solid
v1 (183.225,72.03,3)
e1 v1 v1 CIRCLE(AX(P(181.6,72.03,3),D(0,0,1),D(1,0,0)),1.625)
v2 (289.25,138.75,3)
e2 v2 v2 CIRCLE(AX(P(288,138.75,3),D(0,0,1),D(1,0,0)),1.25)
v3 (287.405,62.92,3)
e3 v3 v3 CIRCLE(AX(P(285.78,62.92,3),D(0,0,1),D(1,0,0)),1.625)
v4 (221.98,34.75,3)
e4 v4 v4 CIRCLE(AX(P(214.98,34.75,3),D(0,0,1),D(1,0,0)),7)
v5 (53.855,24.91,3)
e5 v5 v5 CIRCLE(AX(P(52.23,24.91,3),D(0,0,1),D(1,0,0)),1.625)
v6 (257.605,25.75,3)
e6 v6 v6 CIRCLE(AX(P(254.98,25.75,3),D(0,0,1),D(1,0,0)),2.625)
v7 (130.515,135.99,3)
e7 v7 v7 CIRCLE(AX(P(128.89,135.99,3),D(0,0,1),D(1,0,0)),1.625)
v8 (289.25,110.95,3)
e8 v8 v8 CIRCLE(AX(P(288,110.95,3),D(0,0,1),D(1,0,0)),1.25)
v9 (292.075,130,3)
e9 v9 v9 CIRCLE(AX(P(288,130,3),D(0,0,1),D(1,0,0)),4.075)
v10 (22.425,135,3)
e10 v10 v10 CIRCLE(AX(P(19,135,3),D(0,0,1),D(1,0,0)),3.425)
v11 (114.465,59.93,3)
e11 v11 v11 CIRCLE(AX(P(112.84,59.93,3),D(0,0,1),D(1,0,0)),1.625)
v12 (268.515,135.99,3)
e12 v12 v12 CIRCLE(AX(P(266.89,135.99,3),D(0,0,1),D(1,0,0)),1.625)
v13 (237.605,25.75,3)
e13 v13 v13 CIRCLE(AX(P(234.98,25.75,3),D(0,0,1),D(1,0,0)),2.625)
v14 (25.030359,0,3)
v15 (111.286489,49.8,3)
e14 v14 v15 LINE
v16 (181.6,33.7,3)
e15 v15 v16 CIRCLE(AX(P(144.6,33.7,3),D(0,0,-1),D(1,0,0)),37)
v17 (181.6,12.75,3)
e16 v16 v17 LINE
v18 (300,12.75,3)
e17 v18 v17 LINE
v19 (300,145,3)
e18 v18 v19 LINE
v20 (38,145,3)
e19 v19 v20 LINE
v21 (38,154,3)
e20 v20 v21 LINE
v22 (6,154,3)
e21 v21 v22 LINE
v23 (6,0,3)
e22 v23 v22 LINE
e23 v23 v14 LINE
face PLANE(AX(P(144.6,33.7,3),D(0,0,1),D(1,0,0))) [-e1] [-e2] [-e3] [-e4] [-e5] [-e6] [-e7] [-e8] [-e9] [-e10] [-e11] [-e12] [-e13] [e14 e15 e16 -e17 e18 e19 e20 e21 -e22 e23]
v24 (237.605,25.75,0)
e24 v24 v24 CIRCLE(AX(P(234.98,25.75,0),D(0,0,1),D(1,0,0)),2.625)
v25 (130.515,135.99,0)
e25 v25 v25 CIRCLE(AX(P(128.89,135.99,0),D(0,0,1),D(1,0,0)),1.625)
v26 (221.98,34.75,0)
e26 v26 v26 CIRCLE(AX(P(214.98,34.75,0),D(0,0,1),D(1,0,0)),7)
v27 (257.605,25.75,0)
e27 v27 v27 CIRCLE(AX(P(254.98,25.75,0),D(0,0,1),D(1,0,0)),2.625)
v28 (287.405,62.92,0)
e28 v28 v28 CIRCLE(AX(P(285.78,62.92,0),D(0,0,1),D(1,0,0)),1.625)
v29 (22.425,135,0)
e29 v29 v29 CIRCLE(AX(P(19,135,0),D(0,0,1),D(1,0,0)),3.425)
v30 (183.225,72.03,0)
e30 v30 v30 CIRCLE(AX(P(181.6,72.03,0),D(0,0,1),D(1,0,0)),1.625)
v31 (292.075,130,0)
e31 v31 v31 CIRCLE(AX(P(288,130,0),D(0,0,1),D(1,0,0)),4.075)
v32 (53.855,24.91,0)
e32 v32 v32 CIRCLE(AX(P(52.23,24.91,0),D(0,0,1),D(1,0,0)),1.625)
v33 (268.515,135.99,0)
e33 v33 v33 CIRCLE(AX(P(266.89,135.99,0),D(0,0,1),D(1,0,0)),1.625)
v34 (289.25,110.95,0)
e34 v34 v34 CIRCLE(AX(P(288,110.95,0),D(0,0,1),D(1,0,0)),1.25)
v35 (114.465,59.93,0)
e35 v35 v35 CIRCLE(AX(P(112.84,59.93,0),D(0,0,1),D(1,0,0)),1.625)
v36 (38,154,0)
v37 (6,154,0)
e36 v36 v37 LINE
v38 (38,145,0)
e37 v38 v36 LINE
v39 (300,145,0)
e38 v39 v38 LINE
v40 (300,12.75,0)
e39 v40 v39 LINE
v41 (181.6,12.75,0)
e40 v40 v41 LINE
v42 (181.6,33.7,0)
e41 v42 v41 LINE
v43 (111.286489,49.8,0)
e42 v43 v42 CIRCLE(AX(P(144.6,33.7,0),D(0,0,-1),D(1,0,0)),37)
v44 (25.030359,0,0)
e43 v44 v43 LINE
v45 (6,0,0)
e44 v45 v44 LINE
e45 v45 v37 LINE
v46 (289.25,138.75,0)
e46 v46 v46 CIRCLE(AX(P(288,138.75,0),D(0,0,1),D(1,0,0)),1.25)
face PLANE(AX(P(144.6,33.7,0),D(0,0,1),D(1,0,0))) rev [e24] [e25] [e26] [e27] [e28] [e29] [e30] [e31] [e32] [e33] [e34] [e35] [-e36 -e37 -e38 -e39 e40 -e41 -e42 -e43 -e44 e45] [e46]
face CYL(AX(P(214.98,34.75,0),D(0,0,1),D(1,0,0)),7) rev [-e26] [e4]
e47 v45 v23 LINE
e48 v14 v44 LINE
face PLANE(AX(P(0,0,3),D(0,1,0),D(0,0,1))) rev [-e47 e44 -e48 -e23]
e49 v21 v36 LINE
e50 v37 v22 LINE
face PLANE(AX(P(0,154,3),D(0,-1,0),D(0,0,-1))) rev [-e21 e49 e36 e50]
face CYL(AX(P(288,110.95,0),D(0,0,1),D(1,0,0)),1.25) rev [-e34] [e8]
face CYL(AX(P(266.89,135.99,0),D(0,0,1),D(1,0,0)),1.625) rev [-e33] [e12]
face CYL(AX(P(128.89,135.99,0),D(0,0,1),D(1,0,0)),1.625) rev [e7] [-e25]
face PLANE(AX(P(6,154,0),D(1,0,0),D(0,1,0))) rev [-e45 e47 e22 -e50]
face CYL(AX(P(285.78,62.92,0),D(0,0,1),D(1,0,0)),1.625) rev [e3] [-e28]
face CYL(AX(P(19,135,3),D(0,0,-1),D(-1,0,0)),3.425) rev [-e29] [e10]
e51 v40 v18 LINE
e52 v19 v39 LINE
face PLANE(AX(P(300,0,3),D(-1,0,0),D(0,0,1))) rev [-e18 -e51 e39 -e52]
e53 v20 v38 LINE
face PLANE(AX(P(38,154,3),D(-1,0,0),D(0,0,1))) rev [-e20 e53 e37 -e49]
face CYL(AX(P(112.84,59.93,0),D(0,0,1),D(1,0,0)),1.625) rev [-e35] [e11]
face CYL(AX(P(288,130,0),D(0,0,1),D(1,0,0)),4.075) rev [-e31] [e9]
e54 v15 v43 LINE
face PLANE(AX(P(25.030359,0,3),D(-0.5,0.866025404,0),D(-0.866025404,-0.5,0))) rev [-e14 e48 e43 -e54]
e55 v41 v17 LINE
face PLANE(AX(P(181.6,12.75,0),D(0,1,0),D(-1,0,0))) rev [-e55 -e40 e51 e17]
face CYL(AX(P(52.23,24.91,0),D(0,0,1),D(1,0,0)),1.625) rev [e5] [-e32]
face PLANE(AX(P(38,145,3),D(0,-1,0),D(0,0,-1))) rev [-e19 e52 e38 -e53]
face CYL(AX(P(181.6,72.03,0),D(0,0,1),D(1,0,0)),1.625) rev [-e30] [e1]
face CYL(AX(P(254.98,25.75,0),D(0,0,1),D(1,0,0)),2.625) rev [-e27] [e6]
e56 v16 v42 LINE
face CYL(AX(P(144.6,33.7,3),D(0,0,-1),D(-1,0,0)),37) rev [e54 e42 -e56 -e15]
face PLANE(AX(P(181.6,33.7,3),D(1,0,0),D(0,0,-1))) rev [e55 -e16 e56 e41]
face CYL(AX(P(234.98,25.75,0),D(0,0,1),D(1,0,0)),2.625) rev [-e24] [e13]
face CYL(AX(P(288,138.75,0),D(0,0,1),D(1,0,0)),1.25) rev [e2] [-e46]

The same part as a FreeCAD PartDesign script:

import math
import FreeCAD as App
import Part
import Sketcher

V = App.Vector
Q = App.Units.Quantity

doc = App.newDocument("Part")
body = doc.addObject("PartDesign::Body", "Body")

# Sketch on XY plane
sketch1 = doc.addObject("Sketcher::SketchObject", "Sketch")
body.addObject(sketch1)
sketch1.AttachmentSupport = (doc.XY_Plane, [""])
sketch1.MapMode = "FlatFace"
sketch1.addGeometry([
    Part.LineSegment(V(25, 0, 0), V(111.3, 49.8, 0)),  # 0
    Part.ArcOfCircle(Part.Circle(V(144.6, 33.7, 0), V(0, 0, 1), 37), math.radians(0), math.radians(154)),  # 1
    Part.LineSegment(V(181.6, 33.7, 0), V(181.6, 0, 0)),  # 2
    Part.LineSegment(V(181.6, 0, 0), V(300, 0, 0)),  # 3
    Part.LineSegment(V(300, 0, 0), V(300, 145, 0)),  # 4
    Part.LineSegment(V(300, 145, 0), V(38, 145, 0)),  # 5
    Part.LineSegment(V(38, 145, 0), V(38, 154, 0)),  # 6
    Part.LineSegment(V(38, 154, 0), V(0, 154, 0)),  # 7
    Part.LineSegment(V(0, 154, 0), V(0, 0, 0)),  # 8
    Part.LineSegment(V(0, 0, 0), V(25, 0, 0)),  # 9
    Part.Circle(V(19, 135, 0), V(0, 0, 1), 3.4),  # 10
], False)
sketch1.addConstraint([
    Sketcher.Constraint("Coincident", 0, 2, 1, 2),
    Sketcher.Constraint("Tangent", 1, 1, 2, 1),
    Sketcher.Constraint("Coincident", 2, 2, 3, 1),
    Sketcher.Constraint("Coincident", 3, 2, 4, 1),
    Sketcher.Constraint("Coincident", 4, 2, 5, 1),
    Sketcher.Constraint("Coincident", 5, 2, 6, 1),
    Sketcher.Constraint("Coincident", 6, 2, 7, 1),
    Sketcher.Constraint("Coincident", 7, 2, 8, 1),
    Sketcher.Constraint("Coincident", 8, 2, 9, 1),
    Sketcher.Constraint("Coincident", 9, 2, 0, 1),
    Sketcher.Constraint("Vertical", 2),
    Sketcher.Constraint("Horizontal", 3),
    Sketcher.Constraint("Vertical", 4),
    Sketcher.Constraint("Horizontal", 5),
    Sketcher.Constraint("Vertical", 6),
    Sketcher.Constraint("Horizontal", 7),
    Sketcher.Constraint("Vertical", 8),
    Sketcher.Constraint("Horizontal", 9),
    Sketcher.Constraint("Coincident", 8, 2, -1, 1),
    Sketcher.Constraint("PointOnObject", 2, 2, -1),
    Sketcher.Constraint("Radius", 1, Q("37 mm")),
    Sketcher.Constraint("Diameter", 10, Q("6.85 mm")),
    Sketcher.Constraint("DistanceX", 5, 2, 5, 1, Q("262 mm")),
    Sketcher.Constraint("DistanceX", 7, 2, 7, 1, Q("38 mm")),
    Sketcher.Constraint("DistanceY", 4, 1, 4, 2, Q("145 mm")),
    Sketcher.Constraint("DistanceY", 6, 1, 6, 2, Q("9 mm")),
    Sketcher.Constraint("Angle", 0, Q("30 deg")),
    Sketcher.Constraint("DistanceX", 3, 1, 3, 2, Q("118.4 mm")),
    Sketcher.Constraint("DistanceY", 2, 2, 2, 1, Q("33.7 mm")),
    Sketcher.Constraint("DistanceX", -1, 1, 10, 3, Q("19 mm")),
    Sketcher.Constraint("DistanceY", -1, 1, 10, 3, Q("135 mm")),
    Sketcher.Constraint("Distance", 0, Q("99.6 mm")),
])
pad1 = doc.addObject("PartDesign::Pad", "Pad")
body.addObject(pad1)
pad1.Profile = sketch1
pad1.Length = 3

# Sketch on XY plane
sketch2 = doc.addObject("Sketcher::SketchObject", "Sketch001")
body.addObject(sketch2)
sketch2.AttachmentSupport = (doc.XY_Plane, [""])
sketch2.MapMode = "FlatFace"
sketch2.AttachmentOffset = App.Placement(V(0, 0, 3), App.Rotation())
sketch2.addGeometry([
    Part.LineSegment(V(182, 13, 0), V(182, 0, 0)),
    Part.LineSegment(V(182, 0, 0), V(300, 0, 0)),
    Part.LineSegment(V(300, 0, 0), V(300, 13, 0)),
    Part.LineSegment(V(300, 13, 0), V(182, 13, 0)),
], False)
sketch2.addConstraint([
    Sketcher.Constraint("Coincident", 0, 2, 1, 1),
    Sketcher.Constraint("Coincident", 1, 2, 2, 1),
    Sketcher.Constraint("Coincident", 2, 2, 3, 1),
    Sketcher.Constraint("Coincident", 3, 2, 0, 1),
    Sketcher.Constraint("Vertical", 0),
    Sketcher.Constraint("Horizontal", 1),
    Sketcher.Constraint("Vertical", 2),
    Sketcher.Constraint("Horizontal", 3),
    Sketcher.Constraint("PointOnObject", 0, 2, -1),
    Sketcher.Constraint("DistanceX", 1, 1, 1, 2, Q("118.4 mm")),
    Sketcher.Constraint("DistanceX", -1, 1, 1, 2, Q("300 mm")),
    Sketcher.Constraint("DistanceY", 0, 2, 0, 1, Q("12.75 mm")),
])
pocket1 = doc.addObject("PartDesign::Pocket", "Pocket")
body.addObject(pocket1)
pocket1.Profile = sketch2
pocket1.Type = "ThroughAll"

# Sketch on XY plane
sketch3 = doc.addObject("Sketcher::SketchObject", "Sketch002")
body.addObject(sketch3)
sketch3.AttachmentSupport = (doc.XY_Plane, [""])
sketch3.MapMode = "FlatFace"
sketch3.AttachmentOffset = App.Placement(V(0, 0, 3), App.Rotation())
sketch3.addGeometry([
    Part.Circle(V(255, 25.8, 0), V(0, 0, 1), 2.6),  # 0
    Part.Circle(V(235, 25.8, 0), V(0, 0, 1), 2.6),  # 1
    Part.Circle(V(288, 130, 0), V(0, 0, 1), 4.1),  # 2
    Part.Circle(V(288, 138.8, 0), V(0, 0, 1), 1.2),  # 3
    Part.Circle(V(288, 111, 0), V(0, 0, 1), 1.2),  # 4
    Part.Circle(V(181.6, 72, 0), V(0, 0, 1), 1.6),  # 5
    Part.Circle(V(285.8, 62.9, 0), V(0, 0, 1), 1.6),  # 6
    Part.Circle(V(52.2, 24.9, 0), V(0, 0, 1), 1.6),  # 7
    Part.Circle(V(112.8, 59.9, 0), V(0, 0, 1), 1.6),  # 8
    Part.Circle(V(266.9, 136, 0), V(0, 0, 1), 1.6),  # 9
    Part.Circle(V(128.9, 136, 0), V(0, 0, 1), 1.6),  # 10
    Part.Circle(V(215, 34.8, 0), V(0, 0, 1), 7),  # 11
    Part.LineSegment(V(0, 154, 0), V(0, 0, 0)),  # 12
    Part.LineSegment(V(0, 0, 0), V(6, 0, 0)),  # 13
    Part.LineSegment(V(6, 0, 0), V(6, 154, 0)),  # 14
    Part.LineSegment(V(6, 154, 0), V(0, 154, 0)),  # 15
], False)
sketch3.addConstraint([
    Sketcher.Constraint("Coincident", 12, 2, 13, 1),
    Sketcher.Constraint("Coincident", 13, 2, 14, 1),
    Sketcher.Constraint("Coincident", 14, 2, 15, 1),
    Sketcher.Constraint("Coincident", 15, 2, 12, 1),
    Sketcher.Constraint("Vertical", 12),
    Sketcher.Constraint("Horizontal", 13),
    Sketcher.Constraint("Vertical", 14),
    Sketcher.Constraint("Horizontal", 15),
    Sketcher.Constraint("Coincident", 12, 2, -1, 1),
    Sketcher.Constraint("Equal", 0, 1),
    Sketcher.Constraint("Equal", 3, 4),
    Sketcher.Constraint("Equal", 5, 6),
    Sketcher.Constraint("Equal", 6, 7),
    Sketcher.Constraint("Equal", 7, 8),
    Sketcher.Constraint("Equal", 8, 9),
    Sketcher.Constraint("Equal", 9, 10),
    Sketcher.Constraint("Horizontal", 0, 3, 1, 3),
    Sketcher.Constraint("Horizontal", 9, 3, 10, 3),
    Sketcher.Constraint("Vertical", 2, 3, 3, 3),
    Sketcher.Constraint("Vertical", 3, 3, 4, 3),
    Sketcher.Constraint("Diameter", 11, Q("14 mm")),
    Sketcher.Constraint("Diameter", 3, Q("2.5 mm")),
    Sketcher.Constraint("Diameter", 0, Q("5.25 mm")),
    Sketcher.Constraint("Diameter", 2, Q("8.15 mm")),
    Sketcher.Constraint("Diameter", 5, Q("3.25 mm")),
    Sketcher.Constraint("DistanceX", 13, 1, 13, 2, Q("6 mm")),
    Sketcher.Constraint("DistanceY", 12, 2, 12, 1, Q("154 mm")),
    Sketcher.Constraint("DistanceX", -1, 1, 2, 3, Q("288 mm")),
    Sketcher.Constraint("DistanceY", -1, 1, 2, 3, Q("130 mm")),
    Sketcher.Constraint("DistanceX", 1, 3, 0, 3, Q("20 mm")),
    Sketcher.Constraint("DistanceY", 0, 3, 3, 3, Q("113 mm")),
    Sketcher.Constraint("DistanceX", 10, 3, 9, 3, Q("138 mm")),
    Sketcher.Constraint("DistanceX", 11, 3, 1, 3, Q("20 mm")),
    Sketcher.Constraint("DistanceY", 1, 3, 11, 3, Q("9 mm")),
    Sketcher.Constraint("DistanceX", -1, 1, 5, 3, Q("181.6 mm")),
    Sketcher.Constraint("DistanceY", 4, 3, 3, 3, Q("27.8 mm")),
    Sketcher.Constraint("DistanceX", 0, 3, 6, 3, Q("30.8 mm")),
    Sketcher.Constraint("DistanceY", 8, 3, 5, 3, Q("12.1 mm")),
    Sketcher.Constraint("DistanceX", -1, 1, 0, 3, Q("254.98 mm")),
    Sketcher.Constraint("DistanceY", -1, 1, 0, 3, Q("25.75 mm")),
    Sketcher.Constraint("DistanceY", -1, 1, 5, 3, Q("72.03 mm")),
    Sketcher.Constraint("DistanceY", -1, 1, 6, 3, Q("62.92 mm")),
    Sketcher.Constraint("DistanceX", -1, 1, 7, 3, Q("52.23 mm")),
    Sketcher.Constraint("DistanceY", -1, 1, 7, 3, Q("24.91 mm")),
    Sketcher.Constraint("DistanceX", -1, 1, 8, 3, Q("112.84 mm")),
    Sketcher.Constraint("DistanceX", -1, 1, 9, 3, Q("266.89 mm")),
    Sketcher.Constraint("DistanceY", -1, 1, 9, 3, Q("135.99 mm")),
])
pocket2 = doc.addObject("PartDesign::Pocket", "Pocket001")
body.addObject(pocket2)
pocket2.Profile = sketch3
pocket2.Type = "ThroughAll"

doc.recompute()
